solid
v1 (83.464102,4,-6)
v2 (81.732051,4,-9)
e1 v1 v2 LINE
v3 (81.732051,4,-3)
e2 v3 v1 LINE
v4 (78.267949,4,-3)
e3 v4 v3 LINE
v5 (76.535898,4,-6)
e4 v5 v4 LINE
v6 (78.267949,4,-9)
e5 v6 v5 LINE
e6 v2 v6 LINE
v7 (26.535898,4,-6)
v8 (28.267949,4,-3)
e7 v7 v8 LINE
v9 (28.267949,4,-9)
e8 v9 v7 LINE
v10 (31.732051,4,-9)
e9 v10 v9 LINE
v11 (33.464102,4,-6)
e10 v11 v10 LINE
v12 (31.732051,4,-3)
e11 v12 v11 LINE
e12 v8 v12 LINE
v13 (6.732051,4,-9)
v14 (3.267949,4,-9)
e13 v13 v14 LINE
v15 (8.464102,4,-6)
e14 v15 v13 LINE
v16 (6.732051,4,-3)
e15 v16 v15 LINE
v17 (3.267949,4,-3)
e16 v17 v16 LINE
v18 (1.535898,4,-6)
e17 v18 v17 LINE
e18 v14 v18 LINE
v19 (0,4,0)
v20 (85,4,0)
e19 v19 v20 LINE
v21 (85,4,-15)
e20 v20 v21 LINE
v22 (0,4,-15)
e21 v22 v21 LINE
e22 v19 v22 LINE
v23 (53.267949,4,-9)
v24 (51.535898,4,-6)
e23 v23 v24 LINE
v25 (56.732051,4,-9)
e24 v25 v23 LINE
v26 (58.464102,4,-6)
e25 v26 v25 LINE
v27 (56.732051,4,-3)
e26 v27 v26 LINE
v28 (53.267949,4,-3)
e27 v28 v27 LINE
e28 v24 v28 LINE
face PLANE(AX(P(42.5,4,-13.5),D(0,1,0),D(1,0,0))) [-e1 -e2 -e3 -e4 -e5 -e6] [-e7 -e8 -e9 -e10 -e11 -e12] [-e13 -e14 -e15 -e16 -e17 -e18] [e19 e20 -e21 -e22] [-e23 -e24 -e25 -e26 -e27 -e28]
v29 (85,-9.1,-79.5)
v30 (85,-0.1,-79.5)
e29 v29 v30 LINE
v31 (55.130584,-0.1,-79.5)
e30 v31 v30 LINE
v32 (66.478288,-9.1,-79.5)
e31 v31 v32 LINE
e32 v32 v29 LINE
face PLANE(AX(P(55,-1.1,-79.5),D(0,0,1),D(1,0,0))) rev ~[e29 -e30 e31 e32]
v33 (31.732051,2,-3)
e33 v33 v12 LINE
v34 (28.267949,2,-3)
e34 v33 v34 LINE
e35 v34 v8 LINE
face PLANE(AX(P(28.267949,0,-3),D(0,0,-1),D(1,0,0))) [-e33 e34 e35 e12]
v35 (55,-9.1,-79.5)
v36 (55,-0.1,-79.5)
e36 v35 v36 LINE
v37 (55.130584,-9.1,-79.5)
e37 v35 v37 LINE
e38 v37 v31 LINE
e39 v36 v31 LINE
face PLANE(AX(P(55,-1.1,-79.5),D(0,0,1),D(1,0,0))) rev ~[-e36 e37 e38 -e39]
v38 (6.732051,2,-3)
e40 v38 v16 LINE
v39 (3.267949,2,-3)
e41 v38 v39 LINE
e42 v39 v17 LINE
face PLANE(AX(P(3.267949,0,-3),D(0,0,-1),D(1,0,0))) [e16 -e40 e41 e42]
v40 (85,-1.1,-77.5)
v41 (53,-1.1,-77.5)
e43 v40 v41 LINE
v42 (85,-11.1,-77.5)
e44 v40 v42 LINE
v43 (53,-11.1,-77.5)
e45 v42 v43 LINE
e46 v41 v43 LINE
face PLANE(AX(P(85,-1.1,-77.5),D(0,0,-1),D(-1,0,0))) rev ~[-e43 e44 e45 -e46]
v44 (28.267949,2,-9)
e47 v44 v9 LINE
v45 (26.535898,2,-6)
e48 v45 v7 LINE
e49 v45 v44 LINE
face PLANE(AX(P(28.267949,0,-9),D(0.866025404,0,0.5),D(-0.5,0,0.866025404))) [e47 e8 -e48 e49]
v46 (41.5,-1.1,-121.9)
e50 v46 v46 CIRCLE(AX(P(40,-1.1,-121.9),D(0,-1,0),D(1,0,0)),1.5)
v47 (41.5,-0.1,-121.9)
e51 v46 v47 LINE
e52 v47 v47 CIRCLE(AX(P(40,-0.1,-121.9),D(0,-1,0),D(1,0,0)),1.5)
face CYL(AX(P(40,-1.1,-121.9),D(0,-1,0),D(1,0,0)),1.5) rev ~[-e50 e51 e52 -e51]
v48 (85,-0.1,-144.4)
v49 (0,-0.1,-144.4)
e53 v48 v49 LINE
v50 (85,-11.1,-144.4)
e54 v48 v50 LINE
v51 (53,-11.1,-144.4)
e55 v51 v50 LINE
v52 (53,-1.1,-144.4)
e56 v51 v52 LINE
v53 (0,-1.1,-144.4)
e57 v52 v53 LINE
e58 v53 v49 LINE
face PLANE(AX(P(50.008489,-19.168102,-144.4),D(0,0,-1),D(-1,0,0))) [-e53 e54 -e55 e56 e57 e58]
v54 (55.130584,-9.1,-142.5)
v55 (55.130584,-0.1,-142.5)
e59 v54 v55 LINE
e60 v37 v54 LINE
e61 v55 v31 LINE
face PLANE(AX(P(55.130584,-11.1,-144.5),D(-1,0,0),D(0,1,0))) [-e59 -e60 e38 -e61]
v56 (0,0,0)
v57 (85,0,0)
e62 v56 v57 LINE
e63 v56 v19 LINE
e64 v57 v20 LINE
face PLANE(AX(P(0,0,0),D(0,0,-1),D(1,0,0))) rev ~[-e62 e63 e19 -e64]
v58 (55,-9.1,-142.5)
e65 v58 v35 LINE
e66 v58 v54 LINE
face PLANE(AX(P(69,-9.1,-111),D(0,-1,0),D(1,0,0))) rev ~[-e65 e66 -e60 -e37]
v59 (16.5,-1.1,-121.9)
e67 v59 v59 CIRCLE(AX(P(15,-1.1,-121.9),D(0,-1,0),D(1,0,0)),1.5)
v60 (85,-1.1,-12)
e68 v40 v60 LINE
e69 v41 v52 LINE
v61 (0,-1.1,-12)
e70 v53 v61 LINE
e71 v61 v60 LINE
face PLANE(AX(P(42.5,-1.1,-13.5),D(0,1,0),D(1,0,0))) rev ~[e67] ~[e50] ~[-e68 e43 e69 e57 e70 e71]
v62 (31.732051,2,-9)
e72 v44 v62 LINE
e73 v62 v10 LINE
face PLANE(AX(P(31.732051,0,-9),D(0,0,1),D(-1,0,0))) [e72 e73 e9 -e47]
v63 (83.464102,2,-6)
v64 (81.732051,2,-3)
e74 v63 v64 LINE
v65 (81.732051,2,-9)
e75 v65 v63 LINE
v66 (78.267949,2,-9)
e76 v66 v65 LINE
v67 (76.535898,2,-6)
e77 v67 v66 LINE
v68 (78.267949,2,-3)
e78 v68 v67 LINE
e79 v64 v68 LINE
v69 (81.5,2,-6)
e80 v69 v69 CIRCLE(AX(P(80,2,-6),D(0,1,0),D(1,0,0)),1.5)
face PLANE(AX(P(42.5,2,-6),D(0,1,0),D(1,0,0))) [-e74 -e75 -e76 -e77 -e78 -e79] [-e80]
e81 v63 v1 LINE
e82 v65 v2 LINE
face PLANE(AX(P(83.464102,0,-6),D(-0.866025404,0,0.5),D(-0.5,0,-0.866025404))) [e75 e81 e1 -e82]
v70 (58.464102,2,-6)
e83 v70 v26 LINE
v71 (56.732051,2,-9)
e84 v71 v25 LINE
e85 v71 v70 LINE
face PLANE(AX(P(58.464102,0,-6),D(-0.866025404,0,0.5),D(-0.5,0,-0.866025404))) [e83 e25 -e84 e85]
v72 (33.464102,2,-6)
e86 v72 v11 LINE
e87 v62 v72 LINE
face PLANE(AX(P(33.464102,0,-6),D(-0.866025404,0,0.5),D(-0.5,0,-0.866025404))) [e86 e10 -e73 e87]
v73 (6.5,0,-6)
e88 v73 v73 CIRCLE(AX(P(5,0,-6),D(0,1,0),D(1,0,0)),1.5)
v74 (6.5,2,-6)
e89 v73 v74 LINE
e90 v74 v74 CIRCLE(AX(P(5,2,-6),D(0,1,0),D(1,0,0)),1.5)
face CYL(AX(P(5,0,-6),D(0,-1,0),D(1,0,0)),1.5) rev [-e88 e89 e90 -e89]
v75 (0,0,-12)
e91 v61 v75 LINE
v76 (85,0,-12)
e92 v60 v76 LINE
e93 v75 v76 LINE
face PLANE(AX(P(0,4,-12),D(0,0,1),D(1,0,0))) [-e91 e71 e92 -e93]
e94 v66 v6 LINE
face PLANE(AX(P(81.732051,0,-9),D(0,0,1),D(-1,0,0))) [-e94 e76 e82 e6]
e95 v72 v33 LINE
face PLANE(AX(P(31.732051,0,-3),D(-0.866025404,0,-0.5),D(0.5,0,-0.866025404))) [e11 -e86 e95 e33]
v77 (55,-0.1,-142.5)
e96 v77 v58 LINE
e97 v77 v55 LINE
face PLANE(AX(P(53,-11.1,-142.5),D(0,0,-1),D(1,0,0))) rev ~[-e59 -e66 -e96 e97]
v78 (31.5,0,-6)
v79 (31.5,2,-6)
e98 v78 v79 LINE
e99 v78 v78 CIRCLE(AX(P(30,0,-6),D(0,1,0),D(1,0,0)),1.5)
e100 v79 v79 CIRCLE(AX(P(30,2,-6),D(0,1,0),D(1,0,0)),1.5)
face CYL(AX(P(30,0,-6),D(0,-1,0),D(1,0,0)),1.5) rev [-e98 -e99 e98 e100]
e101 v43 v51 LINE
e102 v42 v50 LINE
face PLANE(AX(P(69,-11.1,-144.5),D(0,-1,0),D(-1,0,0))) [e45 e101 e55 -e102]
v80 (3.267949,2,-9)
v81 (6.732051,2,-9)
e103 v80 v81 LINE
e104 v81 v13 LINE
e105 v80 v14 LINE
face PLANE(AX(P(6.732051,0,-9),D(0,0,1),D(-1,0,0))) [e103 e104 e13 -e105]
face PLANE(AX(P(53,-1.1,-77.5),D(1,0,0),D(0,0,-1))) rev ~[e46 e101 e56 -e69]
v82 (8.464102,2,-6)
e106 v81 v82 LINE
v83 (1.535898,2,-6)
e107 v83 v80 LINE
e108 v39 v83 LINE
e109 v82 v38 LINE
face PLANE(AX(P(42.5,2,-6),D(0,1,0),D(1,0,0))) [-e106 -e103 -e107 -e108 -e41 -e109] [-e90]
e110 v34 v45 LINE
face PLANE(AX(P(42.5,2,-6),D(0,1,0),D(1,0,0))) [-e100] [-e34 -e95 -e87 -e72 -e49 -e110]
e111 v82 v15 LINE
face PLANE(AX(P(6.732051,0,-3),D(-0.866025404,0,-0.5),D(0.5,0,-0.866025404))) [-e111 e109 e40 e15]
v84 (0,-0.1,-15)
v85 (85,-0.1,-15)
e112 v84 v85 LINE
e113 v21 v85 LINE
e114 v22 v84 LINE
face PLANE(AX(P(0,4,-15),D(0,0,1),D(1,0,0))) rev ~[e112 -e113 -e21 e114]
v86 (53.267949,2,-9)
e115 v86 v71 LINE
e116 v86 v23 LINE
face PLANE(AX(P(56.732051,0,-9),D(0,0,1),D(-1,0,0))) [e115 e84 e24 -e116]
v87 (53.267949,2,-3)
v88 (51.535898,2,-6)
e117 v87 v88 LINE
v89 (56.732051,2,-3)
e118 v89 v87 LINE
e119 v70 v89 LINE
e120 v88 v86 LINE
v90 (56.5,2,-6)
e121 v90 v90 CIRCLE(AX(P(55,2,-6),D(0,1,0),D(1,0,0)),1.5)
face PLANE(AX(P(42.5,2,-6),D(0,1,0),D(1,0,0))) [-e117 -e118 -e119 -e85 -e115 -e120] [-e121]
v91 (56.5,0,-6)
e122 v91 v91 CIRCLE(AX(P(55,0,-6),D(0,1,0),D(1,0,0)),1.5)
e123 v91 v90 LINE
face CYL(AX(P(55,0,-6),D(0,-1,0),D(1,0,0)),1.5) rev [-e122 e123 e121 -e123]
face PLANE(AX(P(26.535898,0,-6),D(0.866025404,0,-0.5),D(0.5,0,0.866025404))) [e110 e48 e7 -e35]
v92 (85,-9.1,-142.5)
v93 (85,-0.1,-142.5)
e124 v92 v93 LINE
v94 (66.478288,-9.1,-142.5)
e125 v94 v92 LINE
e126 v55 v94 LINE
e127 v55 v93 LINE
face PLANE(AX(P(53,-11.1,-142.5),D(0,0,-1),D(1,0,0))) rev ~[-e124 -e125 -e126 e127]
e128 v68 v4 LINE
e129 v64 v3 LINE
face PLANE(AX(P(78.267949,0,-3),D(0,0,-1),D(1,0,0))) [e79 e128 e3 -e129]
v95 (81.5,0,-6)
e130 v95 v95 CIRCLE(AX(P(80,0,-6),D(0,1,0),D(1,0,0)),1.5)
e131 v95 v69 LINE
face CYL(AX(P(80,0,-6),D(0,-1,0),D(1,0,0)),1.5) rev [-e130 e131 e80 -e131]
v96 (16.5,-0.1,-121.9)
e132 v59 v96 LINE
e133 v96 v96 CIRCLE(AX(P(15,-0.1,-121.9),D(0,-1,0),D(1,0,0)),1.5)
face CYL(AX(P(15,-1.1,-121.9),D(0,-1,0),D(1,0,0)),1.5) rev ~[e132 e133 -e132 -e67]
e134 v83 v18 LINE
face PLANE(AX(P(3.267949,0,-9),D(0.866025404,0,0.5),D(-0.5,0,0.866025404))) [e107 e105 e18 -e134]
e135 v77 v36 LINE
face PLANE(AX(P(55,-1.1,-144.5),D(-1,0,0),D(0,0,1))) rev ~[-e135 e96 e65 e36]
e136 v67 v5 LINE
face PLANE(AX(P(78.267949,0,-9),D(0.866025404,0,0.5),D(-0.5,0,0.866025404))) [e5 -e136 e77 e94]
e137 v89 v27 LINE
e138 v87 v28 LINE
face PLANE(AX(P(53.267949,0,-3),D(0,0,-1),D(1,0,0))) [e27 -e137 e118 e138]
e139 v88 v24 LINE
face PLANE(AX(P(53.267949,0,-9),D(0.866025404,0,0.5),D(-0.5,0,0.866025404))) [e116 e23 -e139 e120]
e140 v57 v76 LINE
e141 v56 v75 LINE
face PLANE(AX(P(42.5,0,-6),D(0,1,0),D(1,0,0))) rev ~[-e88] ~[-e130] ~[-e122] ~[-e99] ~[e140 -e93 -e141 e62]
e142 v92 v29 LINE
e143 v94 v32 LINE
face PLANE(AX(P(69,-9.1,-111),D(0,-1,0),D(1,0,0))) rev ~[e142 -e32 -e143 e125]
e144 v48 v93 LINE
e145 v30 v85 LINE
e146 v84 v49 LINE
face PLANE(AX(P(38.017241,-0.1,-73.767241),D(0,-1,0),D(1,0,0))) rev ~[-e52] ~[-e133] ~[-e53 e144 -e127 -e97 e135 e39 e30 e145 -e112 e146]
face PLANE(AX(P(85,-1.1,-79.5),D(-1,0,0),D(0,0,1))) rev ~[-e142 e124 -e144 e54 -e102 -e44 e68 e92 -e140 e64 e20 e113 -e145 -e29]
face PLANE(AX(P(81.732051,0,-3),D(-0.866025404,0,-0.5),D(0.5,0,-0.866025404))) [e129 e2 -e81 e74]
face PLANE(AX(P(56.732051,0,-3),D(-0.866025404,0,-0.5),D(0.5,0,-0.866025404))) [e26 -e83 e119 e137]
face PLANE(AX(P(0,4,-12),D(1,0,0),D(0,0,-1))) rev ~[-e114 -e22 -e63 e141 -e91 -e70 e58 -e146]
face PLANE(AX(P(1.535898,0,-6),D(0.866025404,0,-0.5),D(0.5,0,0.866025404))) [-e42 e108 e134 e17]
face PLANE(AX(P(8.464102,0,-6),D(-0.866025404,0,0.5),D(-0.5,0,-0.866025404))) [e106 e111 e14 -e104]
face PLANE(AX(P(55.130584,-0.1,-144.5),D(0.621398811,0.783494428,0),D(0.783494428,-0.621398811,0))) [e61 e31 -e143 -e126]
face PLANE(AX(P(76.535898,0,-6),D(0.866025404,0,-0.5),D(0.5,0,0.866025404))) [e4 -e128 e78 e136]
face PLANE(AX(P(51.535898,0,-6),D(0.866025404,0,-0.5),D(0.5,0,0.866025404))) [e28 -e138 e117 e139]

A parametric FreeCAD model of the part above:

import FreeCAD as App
import Part
import Sketcher
from FreeCAD import Vector
Q = App.Units.Quantity

doc = App.newDocument("Part")
body = doc.addObject("PartDesign::Body", "Body")

# Sketch on XZ plane
sketch1 = body.newObject("Sketcher::SketchObject", "Sketch")
sketch1.AttachmentSupport = (doc.getObject("XZ_Plane"), [""])
sketch1.MapMode = "FlatFace"
sketch1.addGeometry(Part.LineSegment(Vector(0, -12, 0), Vector(0, 0, 0)), False)
sketch1.addGeometry(Part.LineSegment(Vector(0, 0, 0), Vector(85, 0, 0)), False)
sketch1.addGeometry(Part.LineSegment(Vector(85, 0, 0), Vector(85, -12, 0)), False)
sketch1.addGeometry(Part.LineSegment(Vector(85, -12, 0), Vector(0, -12, 0)), False)
sketch1.addGeometry(Part.Circle(Vector(5, -6, 0), Vector(0, 0, 1), 1.5), False)
sketch1.addGeometry(Part.Circle(Vector(30, -6, 0), Vector(0, 0, 1), 1.5), False)
sketch1.addGeometry(Part.Circle(Vector(55, -6, 0), Vector(0, 0, 1), 1.5), False)
sketch1.addGeometry(Part.Circle(Vector(80, -6, 0), Vector(0, 0, 1), 1.5), False)
sketch1.addConstraint(Sketcher.Constraint("Coincident", 0, 2, 1, 1))
sketch1.addConstraint(Sketcher.Constraint("Coincident", 1, 2, 2, 1))
sketch1.addConstraint(Sketcher.Constraint("Coincident", 2, 2, 3, 1))
sketch1.addConstraint(Sketcher.Constraint("Coincident", 3, 2, 0, 1))
sketch1.addConstraint(Sketcher.Constraint("Vertical", 0))
sketch1.addConstraint(Sketcher.Constraint("Horizontal", 1))
sketch1.addConstraint(Sketcher.Constraint("Vertical", 2))
sketch1.addConstraint(Sketcher.Constraint("Horizontal", 3))
sketch1.addConstraint(Sketcher.Constraint("Coincident", 0, 2, -1, 1))
sketch1.addConstraint(Sketcher.Constraint("Equal", 4, 5))
sketch1.addConstraint(Sketcher.Constraint("Equal", 5, 6))
sketch1.addConstraint(Sketcher.Constraint("Equal", 6, 7))
sketch1.addConstraint(Sketcher.Constraint("Horizontal", 4, 3, 5, 3))
sketch1.addConstraint(Sketcher.Constraint("Horizontal", 5, 3, 6, 3))
sketch1.addConstraint(Sketcher.Constraint("Horizontal", 6, 3, 7, 3))
sketch1.addConstraint(Sketcher.Constraint("Diameter", 4, Q("3 mm")))
sketch1.addConstraint(Sketcher.Constraint("DistanceX", 1, 1, 1, 2, Q("85 mm")))
sketch1.addConstraint(Sketcher.Constraint("DistanceY", 0, 1, 0, 2, Q("12 mm")))
sketch1.addConstraint(Sketcher.Constraint("DistanceX", -1, 1, 4, 3, Q("5 mm")))
sketch1.addConstraint(Sketcher.Constraint("DistanceY", 4, 3, -1, 1, Q("6 mm")))
sketch1.addConstraint(Sketcher.Constraint("DistanceX", -1, 1, 5, 3, Q("30 mm")))
sketch1.addConstraint(Sketcher.Constraint("DistanceX", -1, 1, 6, 3, Q("55 mm")))
sketch1.addConstraint(Sketcher.Constraint("DistanceX", -1, 1, 7, 3, Q("80 mm")))
pad1 = body.newObject("PartDesign::Pad", "Pad")
pad1.Profile = sketch1
pad1.Length = 2
pad1.Reversed = True

# Sketch on XZ plane
sketch2 = body.newObject("Sketcher::SketchObject", "Sketch001")
sketch2.AttachmentSupport = (doc.getObject("XZ_Plane"), [""])
sketch2.MapMode = "FlatFace"
sketch2.addGeometry(Part.LineSegment(Vector(0, -12, 0), Vector(0, 0, 0)), False)
sketch2.addGeometry(Part.LineSegment(Vector(0, 0, 0), Vector(85, 0, 0)), False)
sketch2.addGeometry(Part.LineSegment(Vector(85, 0, 0), Vector(85, -12, 0)), False)
sketch2.addGeometry(Part.LineSegment(Vector(85, -12, 0), Vector(0, -12, 0)), False)
sketch2.addGeometry(Part.LineSegment(Vector(8.464102, -6, 0), Vector(6.732051, -3, 0)), False)
sketch2.addGeometry(Part.LineSegment(Vector(6.732051, -3, 0), Vector(3.267949, -3, 0)), False)
sketch2.addGeometry(Part.LineSegment(Vector(3.267949, -3, 0), Vector(1.535898, -6, 0)), False)
sketch2.addGeometry(Part.LineSegment(Vector(1.535898, -6, 0), Vector(3.267949, -9, 0)), False)
sketch2.addGeometry(Part.LineSegment(Vector(3.267949, -9, 0), Vector(6.732051, -9, 0)), False)
sketch2.addGeometry(Part.LineSegment(Vector(6.732051, -9, 0), Vector(8.464102, -6, 0)), False)
sketch2.addGeometry(Part.LineSegment(Vector(33.464102, -6, 0), Vector(31.732051, -3, 0)), False)
sketch2.addGeometry(Part.LineSegment(Vector(31.732051, -3, 0), Vector(28.267949, -3, 0)), False)
sketch2.addGeometry(Part.LineSegment(Vector(28.267949, -3, 0), Vector(26.535898, -6, 0)), False)
sketch2.addGeometry(Part.LineSegment(Vector(26.535898, -6, 0), Vector(28.267949, -9, 0)), False)
sketch2.addGeometry(Part.LineSegment(Vector(28.267949, -9, 0), Vector(31.732051, -9, 0)), False)
sketch2.addGeometry(Part.LineSegment(Vector(31.732051, -9, 0), Vector(33.464102, -6, 0)), False)
sketch2.addGeometry(Part.LineSegment(Vector(58.464102, -6, 0), Vector(56.732051, -3, 0)), False)
sketch2.addGeometry(Part.LineSegment(Vector(56.732051, -3, 0), Vector(53.267949, -3, 0)), False)
sketch2.addGeometry(Part.LineSegment(Vector(53.267949, -3, 0), Vector(51.535898, -6, 0)), False)
sketch2.addGeometry(Part.LineSegment(Vector(51.535898, -6, 0), Vector(53.267949, -9, 0)), False)
sketch2.addGeometry(Part.LineSegment(Vector(53.267949, -9, 0), Vector(56.732051, -9, 0)), False)
sketch2.addGeometry(Part.LineSegment(Vector(56.732051, -9, 0), Vector(58.464102, -6, 0)), False)
sketch2.addGeometry(Part.LineSegment(Vector(83.464102, -6, 0), Vector(81.732051, -3, 0)), False)
sketch2.addGeometry(Part.LineSegment(Vector(81.732051, -3, 0), Vector(78.267949, -3, 0)), False)
sketch2.addGeometry(Part.LineSegment(Vector(78.267949, -3, 0), Vector(76.535898, -6, 0)), False)
sketch2.addGeometry(Part.LineSegment(Vector(76.535898, -6, 0), Vector(78.267949, -9, 0)), False)
sketch2.addGeometry(Part.LineSegment(Vector(78.267949, -9, 0), Vector(81.732051, -9, 0)), False)
sketch2.addGeometry(Part.LineSegment(Vector(81.732051, -9, 0), Vector(83.464102, -6, 0)), False)
sketch2.addConstraint(Sketcher.Constraint("Coincident", 0, 2, 1, 1))
sketch2.addConstraint(Sketcher.Constraint("Coincident", 1, 2, 2, 1))
sketch2.addConstraint(Sketcher.Constraint("Coincident", 2, 2, 3, 1))
sketch2.addConstraint(Sketcher.Constraint("Coincident", 3, 2, 0, 1))
sketch2.addConstraint(Sketcher.Constraint("Coincident", 4, 2, 5, 1))
sketch2.addConstraint(Sketcher.Constraint("Coincident", 5, 2, 6, 1))
sketch2.addConstraint(Sketcher.Constraint("Coincident", 6, 2, 7, 1))
sketch2.addConstraint(Sketcher.Constraint("Coincident", 7, 2, 8, 1))
sketch2.addConstraint(Sketcher.Constraint("Coincident", 8, 2, 9, 1))
sketch2.addConstraint(Sketcher.Constraint("Coincident", 9, 2, 4, 1))
sketch2.addConstraint(Sketcher.Constraint("Coincident", 10, 2, 11, 1))
sketch2.addConstraint(Sketcher.Constraint("Coincident", 11, 2, 12, 1))
sketch2.addConstraint(Sketcher.Constraint("Coincident", 12, 2, 13, 1))
sketch2.addConstraint(Sketcher.Constraint("Coincident", 13, 2, 14, 1))
sketch2.addConstraint(Sketcher.Constraint("Coincident", 14, 2, 15, 1))
sketch2.addConstraint(Sketcher.Constraint("Coincident", 15, 2, 10, 1))
sketch2.addConstraint(Sketcher.Constraint("Coincident", 16, 2, 17, 1))
sketch2.addConstraint(Sketcher.Constraint("Coincident", 17, 2, 18, 1))
sketch2.addConstraint(Sketcher.Constraint("Coincident", 18, 2, 19, 1))
sketch2.addConstraint(Sketcher.Constraint("Coincident", 19, 2, 20, 1))
sketch2.addConstraint(Sketcher.Constraint("Coincident", 20, 2, 21, 1))
sketch2.addConstraint(Sketcher.Constraint("Coincident", 21, 2, 16, 1))
sketch2.addConstraint(Sketcher.Constraint("Coincident", 22, 2, 23, 1))
sketch2.addConstraint(Sketcher.Constraint("Coincident", 23, 2, 24, 1))
sketch2.addConstraint(Sketcher.Constraint("Coincident", 24, 2, 25, 1))
sketch2.addConstraint(Sketcher.Constraint("Coincident", 25, 2, 26, 1))
sketch2.addConstraint(Sketcher.Constraint("Coincident", 26, 2, 27, 1))
sketch2.addConstraint(Sketcher.Constraint("Coincident", 27, 2, 22, 1))
sketch2.addConstraint(Sketcher.Constraint("Vertical", 0))
sketch2.addConstraint(Sketcher.Constraint("Horizontal", 1))
sketch2.addConstraint(Sketcher.Constraint("Vertical", 2))
sketch2.addConstraint(Sketcher.Constraint("Horizontal", 3))
sketch2.addConstraint(Sketcher.Constraint("Horizontal", 5))
sketch2.addConstraint(Sketcher.Constraint("Horizontal", 8))
sketch2.addConstraint(Sketcher.Constraint("Horizontal", 11))
sketch2.addConstraint(Sketcher.Constraint("Horizontal", 14))
sketch2.addConstraint(Sketcher.Constraint("Horizontal", 17))
sketch2.addConstraint(Sketcher.Constraint("Horizontal", 20))
sketch2.addConstraint(Sketcher.Constraint("Horizontal", 23))
sketch2.addConstraint(Sketcher.Constraint("Horizontal", 26))
sketch2.addConstraint(Sketcher.Constraint("Coincident", 0, 2, -1, 1))
sketch2.addConstraint(Sketcher.Constraint("Parallel", 4, 7))
sketch2.addConstraint(Sketcher.Constraint("Parallel", 6, 9))
sketch2.addConstraint(Sketcher.Constraint("Parallel", 7, 10))
sketch2.addConstraint(Sketcher.Constraint("Parallel", 9, 12))
sketch2.addConstraint(Sketcher.Constraint("Parallel", 10, 13))
sketch2.addConstraint(Sketcher.Constraint("Parallel", 12, 15))
sketch2.addConstraint(Sketcher.Constraint("Parallel", 13, 16))
sketch2.addConstraint(Sketcher.Constraint("Parallel", 15, 18))
sketch2.addConstraint(Sketcher.Constraint("Parallel", 16, 19))
sketch2.addConstraint(Sketcher.Constraint("Parallel", 18, 21))
sketch2.addConstraint(Sketcher.Constraint("Parallel", 19, 22))
sketch2.addConstraint(Sketcher.Constraint("Parallel", 21, 24))
sketch2.addConstraint(Sketcher.Constraint("Parallel", 22, 25))
sketch2.addConstraint(Sketcher.Constraint("Parallel", 24, 27))
sketch2.addConstraint(Sketcher.Constraint("Horizontal", 6, 2, 9, 2))
sketch2.addConstraint(Sketcher.Constraint("Horizontal", 5, 2, 10, 2))
sketch2.addConstraint(Sketcher.Constraint("Horizontal", 9, 2, 12, 2))
sketch2.addConstraint(Sketcher.Constraint("Horizontal", 8, 2, 13, 2))
sketch2.addConstraint(Sketcher.Constraint("Horizontal", 12, 2, 15, 2))
sketch2.addConstraint(Sketcher.Constraint("Horizontal", 11, 2, 16, 2))
sketch2.addConstraint(Sketcher.Constraint("Horizontal", 15, 2, 18, 2))
sketch2.addConstraint(Sketcher.Constraint("Horizontal", 14, 2, 19, 2))
sketch2.addConstraint(Sketcher.Constraint("Horizontal", 18, 2, 21, 2))
sketch2.addConstraint(Sketcher.Constraint("Horizontal", 17, 2, 22, 2))
sketch2.addConstraint(Sketcher.Constraint("Horizontal", 21, 2, 24, 2))
sketch2.addConstraint(Sketcher.Constraint("Horizontal", 20, 2, 25, 2))
sketch2.addConstraint(Sketcher.Constraint("Horizontal", 24, 2, 27, 2))
sketch2.addConstraint(Sketcher.Constraint("Vertical", 5, 2, 7, 2))
sketch2.addConstraint(Sketcher.Constraint("Vertical", 4, 2, 8, 2))
sketch2.addConstraint(Sketcher.Constraint("Equal", 8, 11))
sketch2.addConstraint(Sketcher.Constraint("Equal", 14, 17))
sketch2.addConstraint(Sketcher.Constraint("Equal", 20, 23))
sketch2.addConstraint(Sketcher.Constraint("DistanceX", 1, 1, 1, 2, Q("85 mm")))
sketch2.addConstraint(Sketcher.Constraint("DistanceY", 0, 1, 0, 2, Q("12 mm")))
sketch2.addConstraint(Sketcher.Constraint("Angle", 4, Q("120 deg")))
sketch2.addConstraint(Sketcher.Constraint("DistanceY", 4, 2, -1, 1, Q("3 mm")))
sketch2.addConstraint(Sketcher.Constraint("DistanceY", 6, 2, -1, 1, Q("6 mm")))
sketch2.addConstraint(Sketcher.Constraint("DistanceX", 4, 2, 10, 2, Q("25 mm")))
sketch2.addConstraint(Sketcher.Constraint("DistanceX", 10, 2, 16, 2, Q("25 mm")))
sketch2.addConstraint(Sketcher.Constraint("DistanceX", 16, 2, 22, 2, Q("25 mm")))
sketch2.addConstraint(Sketcher.Constraint("DistanceX", 5, 2, 5, 1, Q("3.464102 mm")))
sketch2.addConstraint(Sketcher.Constraint("DistanceX", -1, 1, 6, 2, Q("1.535898 mm")))
pad2 = body.newObject("PartDesign::Pad", "Pad001")
pad2.Profile = sketch2
pad2.Length = 4
pad2.Reversed = True

# Sketch on XZ plane
sketch3 = body.newObject("Sketcher::SketchObject", "Sketch002")
sketch3.AttachmentSupport = (doc.getObject("XZ_Plane"), [""])
sketch3.MapMode = "FlatFace"
sketch3.AttachmentOffset = App.Placement(Vector(0, 0, -4), App.Rotation())
sketch3.addGeometry(Part.LineSegment(Vector(0, -15, 0), Vector(0, -12, 0)), False)
sketch3.addGeometry(Part.LineSegment(Vector(0, -12, 0), Vector(85, -12, 0)), False)
sketch3.addGeometry(Part.LineSegment(Vector(85, -12, 0), Vector(85, -15, 0)), False)
sketch3.addGeometry(Part.LineSegment(Vector(85, -15, 0), Vector(0, -15, 0)), False)
sketch3.addConstraint(Sketcher.Constraint("Coincident", 0, 2, 1, 1))
sketch3.addConstraint(Sketcher.Constraint("Coincident", 1, 2, 2, 1))
sketch3.addConstraint(Sketcher.Constraint("Coincident", 2, 2, 3, 1))
sketch3.addConstraint(Sketcher.Constraint("Coincident", 3, 2, 0, 1))
sketch3.addConstraint(Sketcher.Constraint("Vertical", 0))
sketch3.addConstraint(Sketcher.Constraint("Horizontal", 1))
sketch3.addConstraint(Sketcher.Constraint("Vertical", 2))
sketch3.addConstraint(Sketcher.Constraint("Horizontal", 3))
sketch3.addConstraint(Sketcher.Constraint("PointOnObject", 0, 2, -2))
sketch3.addConstraint(Sketcher.Constraint("DistanceX", 1, 1, 1, 2, Q("85 mm")))
sketch3.addConstraint(Sketcher.Constraint("DistanceY", 0, 1, 0, 2, Q("3 mm")))
sketch3.addConstraint(Sketcher.Constraint("DistanceY", 0, 2, -1, 1, Q("12 mm")))
pad3 = body.newObject("PartDesign::Pad", "Pad002")
pad3.Profile = sketch3
pad3.Length = 5.1

# Sketch on XZ plane
sketch4 = body.newObject("Sketcher::SketchObject", "Sketch003")
sketch4.AttachmentSupport = (doc.getObject("XZ_Plane"), [""])
sketch4.MapMode = "FlatFace"
sketch4.AttachmentOffset = App.Placement(Vector(0, 0, 1.1), App.Rotation())
sketch4.addGeometry(Part.LineSegment(Vector(85, -12, 0), Vector(0, -12, 0)), False)
sketch4.addGeometry(Part.LineSegment(Vector(0, -12, 0), Vector(0, -144.5, 0)), False)
sketch4.addGeometry(Part.LineSegment(Vector(0, -144.5, 0), Vector(55, -144.5, 0)), False)
sketch4.addGeometry(Part.LineSegment(Vector(55, -144.5, 0), Vector(55, -79.5, 0)), False)
sketch4.addGeometry(Part.LineSegment(Vector(55, -79.5, 0), Vector(85, -79.5, 0)), False)
sketch4.addGeometry(Part.LineSegment(Vector(85, -79.5, 0), Vector(85, -12, 0)), False)
sketch4.addConstraint(Sketcher.Constraint("Coincident", 0, 2, 1, 1))
sketch4.addConstraint(Sketcher.Constraint("Coincident", 1, 2, 2, 1))
sketch4.addConstraint(Sketcher.Constraint("Coincident", 2, 2, 3, 1))
sketch4.addConstraint(Sketcher.Constraint("Coincident", 3, 2, 4, 1))
sketch4.addConstraint(Sketcher.Constraint("Coincident", 4, 2, 5, 1))
sketch4.addConstraint(Sketcher.Constraint("Coincident", 5, 2, 0, 1))
sketch4.addConstraint(Sketcher.Constraint("Horizontal", 0))
sketch4.addConstraint(Sketcher.Constraint("Vertical", 1))
sketch4.addConstraint(Sketcher.Constraint("Horizontal", 2))
sketch4.addConstraint(Sketcher.Constraint("Vertical", 3))
sketch4.addConstraint(Sketcher.Constraint("Horizontal", 4))
sketch4.addConstraint(Sketcher.Constraint("Vertical", 5))
sketch4.addConstraint(Sketcher.Constraint("PointOnObject", 0, 2, -2))
sketch4.addConstraint(Sketcher.Constraint("DistanceX", 0, 2, 0, 1, Q("85 mm")))
sketch4.addConstraint(Sketcher.Constraint("DistanceX", 2, 1, 2, 2, Q("55 mm")))
sketch4.addConstraint(Sketcher.Constraint("DistanceY", 3, 1, 3, 2, Q("65 mm")))
sketch4.addConstraint(Sketcher.Constraint("DistanceY", 1, 2, 1, 1, Q("132.5 mm")))
sketch4.addConstraint(Sketcher.Constraint("DistanceY", 0, 2, -1, 1, Q("12 mm")))
pad4 = body.newObject("PartDesign::Pad", "Pad003")
pad4.Profile = sketch4
pad4.Length = 1
pad4.Reversed = True

# Sketch on XZ plane
sketch5 = body.newObject("Sketcher::SketchObject", "Sketch004")
sketch5.AttachmentSupport = (doc.getObject("XZ_Plane"), [""])
sketch5.MapMode = "FlatFace"
sketch5.AttachmentOffset = App.Placement(Vector(0, 0, 1.1), App.Rotation())
sketch5.addGeometry(Part.LineSegment(Vector(85, -79.5, 0), Vector(85, -77.5, 0)), False)
sketch5.addGeometry(Part.LineSegment(Vector(85, -77.5, 0), Vector(53, -77.5, 0)), False)
sketch5.addGeometry(Part.LineSegment(Vector(53, -77.5, 0), Vector(53, -144.5, 0)), False)
sketch5.addGeometry(Part.LineSegment(Vector(53, -144.5, 0), Vector(55, -144.5, 0)), False)
sketch5.addGeometry(Part.LineSegment(Vector(55, -144.5, 0), Vector(55, -79.5, 0)), False)
sketch5.addGeometry(Part.LineSegment(Vector(55, -79.5, 0), Vector(85, -79.5, 0)), False)
sketch5.addConstraint(Sketcher.Constraint("Coincident", 0, 2, 1, 1))
sketch5.addConstraint(Sketcher.Constraint("Coincident", 1, 2, 2, 1))
sketch5.addConstraint(Sketcher.Constraint("Coincident", 2, 2, 3, 1))
sketch5.addConstraint(Sketcher.Constraint("Coincident", 3, 2, 4, 1))
sketch5.addConstraint(Sketcher.Constraint("Coincident", 4, 2, 5, 1))
sketch5.addConstraint(Sketcher.Constraint("Coincident", 5, 2, 0, 1))
sketch5.addConstraint(Sketcher.Constraint("Vertical", 0))
sketch5.addConstraint(Sketcher.Constraint("Horizontal", 1))
sketch5.addConstraint(Sketcher.Constraint("Vertical", 2))
sketch5.addConstraint(Sketcher.Constraint("Horizontal", 3))
sketch5.addConstraint(Sketcher.Constraint("Vertical", 4))
sketch5.addConstraint(Sketcher.Constraint("Horizontal", 5))
sketch5.addConstraint(Sketcher.Constraint("Equal", 3, 0))
sketch5.addConstraint(Sketcher.Constraint("DistanceX", 1, 2, 1, 1, Q("32 mm")))
sketch5.addConstraint(Sketcher.Constraint("DistanceX", 3, 1, 3, 2, Q("2 mm")))
sketch5.addConstraint(Sketcher.Constraint("DistanceY", 2, 2, 2, 1, Q("67 mm")))
sketch5.addConstraint(Sketcher.Constraint("DistanceX", -1, 1, 0, 2, Q("85 mm")))
sketch5.addConstraint(Sketcher.Constraint("DistanceY", 0, 2, -1, 1, Q("77.5 mm")))
pad5 = body.newObject("PartDesign::Pad", "Pad004")
pad5.Profile = sketch5
pad5.Length = 10

# Sketch on XZ plane
sketch6 = body.newObject("Sketcher::SketchObject", "Sketch005")
sketch6.AttachmentSupport = (doc.getObject("XZ_Plane"), [""])
sketch6.MapMode = "FlatFace"
sketch6.AttachmentOffset = App.Placement(Vector(0, 0, 11.1), App.Rotation())
sketch6.addGeometry(Part.LineSegment(Vector(53, -77.5, 0), Vector(53, -144.5, 0)), False)
sketch6.addGeometry(Part.LineSegment(Vector(53, -144.5, 0), Vector(85, -144.5, 0)), False)
sketch6.addGeometry(Part.LineSegment(Vector(85, -144.5, 0), Vector(85, -77.5, 0)), False)
sketch6.addGeometry(Part.LineSegment(Vector(85, -77.5, 0), Vector(53, -77.5, 0)), False)
sketch6.addConstraint(Sketcher.Constraint("Coincident", 0, 2, 1, 1))
sketch6.addConstraint(Sketcher.Constraint("Coincident", 1, 2, 2, 1))
sketch6.addConstraint(Sketcher.Constraint("Coincident", 2, 2, 3, 1))
sketch6.addConstraint(Sketcher.Constraint("Coincident", 3, 2, 0, 1))
sketch6.addConstraint(Sketcher.Constraint("Vertical", 0))
sketch6.addConstraint(Sketcher.Constraint("Horizontal", 1))
sketch6.addConstraint(Sketcher.Constraint("Vertical", 2))
sketch6.addConstraint(Sketcher.Constraint("Horizontal", 3))
sketch6.addConstraint(Sketcher.Constraint("DistanceX", 1, 1, 1, 2, Q("32 mm")))
sketch6.addConstraint(Sketcher.Constraint("DistanceY", 0, 2, 0, 1, Q("67 mm")))
sketch6.addConstraint(Sketcher.Constraint("DistanceX", -1, 1, 0, 2, Q("53 mm")))
sketch6.addConstraint(Sketcher.Constraint("DistanceY", 0, 2, -1, 1, Q("144.5 mm")))
pad6 = body.newObject("PartDesign::Pad", "Pad005")
pad6.Profile = sketch6
pad6.Length = 2
pad6.Reversed = True

# Sketch on XZ plane
sketch7 = body.newObject("Sketcher::SketchObject", "Sketch006")
sketch7.AttachmentSupport = (doc.getObject("XZ_Plane"), [""])
sketch7.MapMode = "FlatFace"
sketch7.AttachmentOffset = App.Placement(Vector(0, 0, 11.1), App.Rotation())
sketch7.addGeometry(Part.LineSegment(Vector(53, -142.5, 0), Vector(53, -144.5, 0)), False)
sketch7.addGeometry(Part.LineSegment(Vector(53, -144.5, 0), Vector(85, -144.5, 0)), False)
sketch7.addGeometry(Part.LineSegment(Vector(85, -144.5, 0), Vector(85, -142.5, 0)), False)
sketch7.addGeometry(Part.LineSegment(Vector(85, -142.5, 0), Vector(53, -142.5, 0)), False)
sketch7.addConstraint(Sketcher.Constraint("Coincident", 0, 2, 1, 1))
sketch7.addConstraint(Sketcher.Constraint("Coincident", 1, 2, 2, 1))
sketch7.addConstraint(Sketcher.Constraint("Coincident", 2, 2, 3, 1))
sketch7.addConstraint(Sketcher.Constraint("Coincident", 3, 2, 0, 1))
sketch7.addConstraint(Sketcher.Constraint("Vertical", 0))
sketch7.addConstraint(Sketcher.Constraint("Horizontal", 1))
sketch7.addConstraint(Sketcher.Constraint("Vertical", 2))
sketch7.addConstraint(Sketcher.Constraint("Horizontal", 3))
sketch7.addConstraint(Sketcher.Constraint("DistanceX", 1, 1, 1, 2, Q("32 mm")))
sketch7.addConstraint(Sketcher.Constraint("DistanceY", 0, 2, 0, 1, Q("2 mm")))
sketch7.addConstraint(Sketcher.Constraint("DistanceX", -1, 1, 0, 2, Q("53 mm")))
sketch7.addConstraint(Sketcher.Constraint("DistanceY", 0, 2, -1, 1, Q("144.5 mm")))
pad7 = body.newObject("PartDesign::Pad", "Pad006")
pad7.Profile = sketch7
pad7.Length = 11
pad7.Reversed = True

# Sketch on XY plane
sketch8 = body.newObject("Sketcher::SketchObject", "Sketch007")
sketch8.AttachmentSupport = (doc.getObject("XY_Plane"), [""])
sketch8.MapMode = "FlatFace"
sketch8.AttachmentOffset = App.Placement(Vector(0, 0, -144.5), App.Rotation())
sketch8.addGeometry(Part.LineSegment(Vector(55.130584, -11.1, 0), Vector(55.130584, -0.1, 0)), False)
sketch8.addGeometry(Part.LineSegment(Vector(55.130584, -0.1, 0), Vector(69, -11.1, 0)), False)
sketch8.addGeometry(Part.LineSegment(Vector(69, -11.1, 0), Vector(55.130584, -11.1, 0)), False)
sketch8.addConstraint(Sketcher.Constraint("Coincident", 0, 2, 1, 1))
sketch8.addConstraint(Sketcher.Constraint("Coincident", 1, 2, 2, 1))
sketch8.addConstraint(Sketcher.Constraint("Coincident", 2, 2, 0, 1))
sketch8.addConstraint(Sketcher.Constraint("Vertical", 0))
sketch8.addConstraint(Sketcher.Constraint("Horizontal", 2))
sketch8.addConstraint(Sketcher.Constraint("DistanceY", 0, 1, 0, 2, Q("11 mm")))
sketch8.addConstraint(Sketcher.Constraint("DistanceX", -1, 1, 1, 2, Q("69 mm")))
sketch8.addConstraint(Sketcher.Constraint("DistanceY", 0, 2, -1, 1, Q("0.1 mm")))
sketch8.addConstraint(Sketcher.Constraint("DistanceX", 2, 2, 2, 1, Q("13.869416 mm")))
pad8 = body.newObject("PartDesign::Pad", "Pad007")
pad8.Profile = sketch8
pad8.Length = 65

# Sketch on XY plane
sketch9 = body.newObject("Sketcher::SketchObject", "Sketch008")
sketch9.AttachmentSupport = (doc.getObject("XY_Plane"), [""])
sketch9.MapMode = "FlatFace"
sketch9.AttachmentOffset = App.Placement(Vector(0, 0, -144.5), App.Rotation())
sketch9.addGeometry(Part.LineSegment(Vector(100.016978, -0.1, 0), Vector(100.016978, -38.236205, 0)), False)
sketch9.addGeometry(Part.LineSegment(Vector(100.016978, -38.236205, 0), Vector(0, -38.236205, 0)), False)
sketch9.addGeometry(Part.LineSegment(Vector(0, -38.236205, 0), Vector(0, -0.1, 0)), False)
sketch9.addGeometry(Part.LineSegment(Vector(0, -0.1, 0), Vector(100.016978, -0.1, 0)), False)
sketch9.addConstraint(Sketcher.Constraint("Coincident", 0, 2, 1, 1))
sketch9.addConstraint(Sketcher.Constraint("Coincident", 1, 2, 2, 1))
sketch9.addConstraint(Sketcher.Constraint("Coincident", 2, 2, 3, 1))
sketch9.addConstraint(Sketcher.Constraint("Coincident", 3, 2, 0, 1))
sketch9.addConstraint(Sketcher.Constraint("Vertical", 0))
sketch9.addConstraint(Sketcher.Constraint("Horizontal", 1))
sketch9.addConstraint(Sketcher.Constraint("Vertical", 2))
sketch9.addConstraint(Sketcher.Constraint("Horizontal", 3))
sketch9.addConstraint(Sketcher.Constraint("PointOnObject", 1, 2, -2))
sketch9.addConstraint(Sketcher.Constraint("DistanceY", 2, 2, -1, 1, Q("0.1 mm")))
sketch9.addConstraint(Sketcher.Constraint("DistanceX", 1, 2, 1, 1, Q("100.016978 mm")))
sketch9.addConstraint(Sketcher.Constraint("DistanceY", 0, 2, 0, 1, Q("38.136205 mm")))
pocket1 = body.newObject("PartDesign::Pocket", "Pocket")
pocket1.Profile = sketch9
pocket1.Length = 0.1
pocket1.Reversed = True

# Sketch on XZ plane
sketch10 = body.newObject("Sketcher::SketchObject", "Sketch009")
sketch10.AttachmentSupport = (doc.getObject("XZ_Plane"), [""])
sketch10.MapMode = "FlatFace"
sketch10.AttachmentOffset = App.Placement(Vector(0, 0, 1.1), App.Rotation())
sketch10.addGeometry(Part.Circle(Vector(15, -121.9, 0), Vector(0, 0, 1), 1.5), False)
sketch10.addGeometry(Part.Circle(Vector(40, -121.9, 0), Vector(0, 0, 1), 1.5), False)
sketch10.addConstraint(Sketcher.Constraint("Equal", 0, 1))
sketch10.addConstraint(Sketcher.Constraint("Horizontal", 0, 3, 1, 3))
sketch10.addConstraint(Sketcher.Constraint("Diameter", 0, Q("3 mm")))
sketch10.addConstraint(Sketcher.Constraint("DistanceX", -1, 1, 0, 3, Q("15 mm")))
sketch10.addConstraint(Sketcher.Constraint("DistanceX", -1, 1, 1, 3, Q("40 mm")))
sketch10.addConstraint(Sketcher.Constraint("DistanceY", 0, 3, -1, 1, Q("121.9 mm")))
pocket2 = body.newObject("PartDesign::Pocket", "Pocket001")
pocket2.Profile = sketch10
pocket2.Type = "ThroughAll"

doc.recompute()
